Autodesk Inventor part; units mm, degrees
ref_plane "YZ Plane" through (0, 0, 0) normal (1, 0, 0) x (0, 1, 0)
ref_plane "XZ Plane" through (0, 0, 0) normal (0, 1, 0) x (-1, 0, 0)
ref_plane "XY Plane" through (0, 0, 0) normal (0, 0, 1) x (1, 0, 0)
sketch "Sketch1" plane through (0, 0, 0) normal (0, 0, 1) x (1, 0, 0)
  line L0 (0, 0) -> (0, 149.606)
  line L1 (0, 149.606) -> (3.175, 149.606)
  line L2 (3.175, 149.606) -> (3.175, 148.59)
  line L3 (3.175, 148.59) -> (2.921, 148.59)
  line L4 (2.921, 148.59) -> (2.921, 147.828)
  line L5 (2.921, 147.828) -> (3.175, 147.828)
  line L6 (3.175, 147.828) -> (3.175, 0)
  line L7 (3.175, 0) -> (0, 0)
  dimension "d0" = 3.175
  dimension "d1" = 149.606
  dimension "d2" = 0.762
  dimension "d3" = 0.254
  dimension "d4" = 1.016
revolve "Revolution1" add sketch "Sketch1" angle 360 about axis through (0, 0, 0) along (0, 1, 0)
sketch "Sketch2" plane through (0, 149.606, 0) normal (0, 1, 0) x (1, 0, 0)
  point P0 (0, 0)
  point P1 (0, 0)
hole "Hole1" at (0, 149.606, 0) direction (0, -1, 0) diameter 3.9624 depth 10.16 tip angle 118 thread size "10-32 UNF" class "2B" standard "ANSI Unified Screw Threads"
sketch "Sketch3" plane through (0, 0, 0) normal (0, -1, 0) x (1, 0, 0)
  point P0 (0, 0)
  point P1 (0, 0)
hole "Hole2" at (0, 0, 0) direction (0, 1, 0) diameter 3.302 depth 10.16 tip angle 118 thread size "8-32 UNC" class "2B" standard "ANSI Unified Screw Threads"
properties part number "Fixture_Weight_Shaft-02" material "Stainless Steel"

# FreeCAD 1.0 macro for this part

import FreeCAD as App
import Part
import Sketcher
from FreeCAD import Vector
Q = App.Units.Quantity


def add_polygon(sketch, points):
    """Adds a closed chain of lines whose ends are joined by coincident constraints."""
    first, n = sketch.GeometryCount, len(points)
    for a, b in zip(points, points[1:] + points[:1]):
        sketch.addGeometry(Part.LineSegment(App.Vector(*a, 0), App.Vector(*b, 0)), False)
    for i in range(n):
        sketch.addConstraint(Sketcher.Constraint("Coincident", first + i, 2, first + (i + 1) % n, 1))

doc = App.newDocument("Part")
params = doc.addObject("Spreadsheet::Sheet", "Params")
for row, (alias, value) in enumerate([
    ("sketch1_width", "0.01 in"),
    ("sketch1_height", "5.89 in"),
    ("sketch1_height2", "0.03 in"),
    ("sketch1_height3", "0.04 in"),
    ("sketch1_width2", "0.125 in"),
    ("revolution_angle", "360 deg"),
    ("sketch2_diameter", "0.156 in"),
    ("hole_diameter", "0.156 in"),
    ("hole_depth", "0.4 in"),
    ("sketch3_diameter", "0.13 in"),
    ("hole2_diameter", "0.13 in"),
    ("hole2_depth", "0.4 in"),
], start=1):
    params.set(f"A{row}", alias)
    params.set(f"B{row}", "=" + value)
    params.setAlias(f"B{row}", alias)

body = doc.addObject("PartDesign::Body", "Body")

# Sketch on XY plane
sketch1 = body.newObject("Sketcher::SketchObject", "Sketch")
sketch1.AttachmentSupport = (doc.getObject("XY_Plane"), [""])
sketch1.MapMode = "FlatFace"
add_polygon(sketch1, [(0, 149.606), (0, 0), (3.175, 0), (3.175, 147.828), (2.921, 147.828), (2.921, 148.59), (3.175, 148.59), (3.175, 149.606)])  # lines 0-7
sketch1.addConstraint([
    Sketcher.Constraint("Vertical", 0),
    Sketcher.Constraint("Horizontal", 1),
    Sketcher.Constraint("Vertical", 2),
    Sketcher.Constraint("Horizontal", 3),
    Sketcher.Constraint("Vertical", 4),
    Sketcher.Constraint("Horizontal", 5),
    Sketcher.Constraint("Vertical", 6),
    Sketcher.Constraint("Horizontal", 7),
    Sketcher.Constraint("Coincident", 0, 2, -1, 1),
    Sketcher.Constraint("Vertical", 2, 2, 5, 2),
    Sketcher.Constraint("DistanceX", 3, 2, 3, 1, Q("0.01 in")),
    Sketcher.Constraint("DistanceY", 0, 2, 0, 1, Q("5.89 in")),
    Sketcher.Constraint("DistanceY", 4, 1, 4, 2, Q("0.03 in")),
    Sketcher.Constraint("DistanceY", 6, 1, 6, 2, Q("0.04 in")),
    Sketcher.Constraint("DistanceX", 1, 1, 1, 2, Q("0.125 in")),
])
sketch1.setExpression("Constraints[18]", "Params.sketch1_width")
sketch1.setExpression("Constraints[19]", "Params.sketch1_height")
sketch1.setExpression("Constraints[20]", "Params.sketch1_height2")
sketch1.setExpression("Constraints[21]", "Params.sketch1_height3")
sketch1.setExpression("Constraints[22]", "Params.sketch1_width2")
revolution = body.newObject("PartDesign::Revolution", "Revolution")
revolution.Profile = sketch1
revolution.ReferenceAxis = (sketch1, ["V_Axis"])
revolution.setExpression("Angle", "Params.revolution_angle")

# Sketch on XZ plane
sketch2 = body.newObject("Sketcher::SketchObject", "Sketch001")
sketch2.AttachmentSupport = (doc.getObject("XZ_Plane"), [""])
sketch2.MapMode = "FlatFace"
sketch2.AttachmentOffset = App.Placement(Vector(0, 0, -5.89 * 25.4), App.Rotation())
sketch2.addGeometry(Part.Circle(Vector(0, 0, 0), Vector(0, 0, 1), 1.9812), False)
sketch2.addConstraint([
    Sketcher.Constraint("Coincident", 0, 3, -1, 1),
    Sketcher.Constraint("Diameter", 0, Q("0.156 in")),
])
sketch2.setExpression("Constraints[1]", "Params.sketch2_diameter")
doc.recompute()
hole = body.newObject("PartDesign::Hole", "Hole")
hole.Profile = sketch2
hole.ThreadType = "None"
hole.setExpression("Diameter", "Params.hole_diameter")
hole.DepthType = "Dimension"
hole.setExpression("Depth", "Params.hole_depth")
hole.DrillPoint = "Angled"
hole.DrillPointAngle = 118
hole.Reversed = True

# Sketch on XZ plane
sketch3 = body.newObject("Sketcher::SketchObject", "Sketch002")
sketch3.AttachmentSupport = (doc.getObject("XZ_Plane"), [""])
sketch3.MapMode = "FlatFace"
sketch3.addGeometry(Part.Circle(Vector(0, 0, 0), Vector(0, 0, 1), 1.651), False)
sketch3.addConstraint([
    Sketcher.Constraint("Coincident", 0, 3, -1, 1),
    Sketcher.Constraint("Diameter", 0, Q("0.13 in")),
])
sketch3.setExpression("Constraints[1]", "Params.sketch3_diameter")
doc.recompute()
hole2 = body.newObject("PartDesign::Hole", "Hole001")
hole2.Profile = sketch3
hole2.ThreadType = "None"
hole2.setExpression("Diameter", "Params.hole2_diameter")
hole2.DepthType = "Dimension"
hole2.setExpression("Depth", "Params.hole2_depth")
hole2.DrillPoint = "Angled"
hole2.DrillPointAngle = 118

doc.recompute()
